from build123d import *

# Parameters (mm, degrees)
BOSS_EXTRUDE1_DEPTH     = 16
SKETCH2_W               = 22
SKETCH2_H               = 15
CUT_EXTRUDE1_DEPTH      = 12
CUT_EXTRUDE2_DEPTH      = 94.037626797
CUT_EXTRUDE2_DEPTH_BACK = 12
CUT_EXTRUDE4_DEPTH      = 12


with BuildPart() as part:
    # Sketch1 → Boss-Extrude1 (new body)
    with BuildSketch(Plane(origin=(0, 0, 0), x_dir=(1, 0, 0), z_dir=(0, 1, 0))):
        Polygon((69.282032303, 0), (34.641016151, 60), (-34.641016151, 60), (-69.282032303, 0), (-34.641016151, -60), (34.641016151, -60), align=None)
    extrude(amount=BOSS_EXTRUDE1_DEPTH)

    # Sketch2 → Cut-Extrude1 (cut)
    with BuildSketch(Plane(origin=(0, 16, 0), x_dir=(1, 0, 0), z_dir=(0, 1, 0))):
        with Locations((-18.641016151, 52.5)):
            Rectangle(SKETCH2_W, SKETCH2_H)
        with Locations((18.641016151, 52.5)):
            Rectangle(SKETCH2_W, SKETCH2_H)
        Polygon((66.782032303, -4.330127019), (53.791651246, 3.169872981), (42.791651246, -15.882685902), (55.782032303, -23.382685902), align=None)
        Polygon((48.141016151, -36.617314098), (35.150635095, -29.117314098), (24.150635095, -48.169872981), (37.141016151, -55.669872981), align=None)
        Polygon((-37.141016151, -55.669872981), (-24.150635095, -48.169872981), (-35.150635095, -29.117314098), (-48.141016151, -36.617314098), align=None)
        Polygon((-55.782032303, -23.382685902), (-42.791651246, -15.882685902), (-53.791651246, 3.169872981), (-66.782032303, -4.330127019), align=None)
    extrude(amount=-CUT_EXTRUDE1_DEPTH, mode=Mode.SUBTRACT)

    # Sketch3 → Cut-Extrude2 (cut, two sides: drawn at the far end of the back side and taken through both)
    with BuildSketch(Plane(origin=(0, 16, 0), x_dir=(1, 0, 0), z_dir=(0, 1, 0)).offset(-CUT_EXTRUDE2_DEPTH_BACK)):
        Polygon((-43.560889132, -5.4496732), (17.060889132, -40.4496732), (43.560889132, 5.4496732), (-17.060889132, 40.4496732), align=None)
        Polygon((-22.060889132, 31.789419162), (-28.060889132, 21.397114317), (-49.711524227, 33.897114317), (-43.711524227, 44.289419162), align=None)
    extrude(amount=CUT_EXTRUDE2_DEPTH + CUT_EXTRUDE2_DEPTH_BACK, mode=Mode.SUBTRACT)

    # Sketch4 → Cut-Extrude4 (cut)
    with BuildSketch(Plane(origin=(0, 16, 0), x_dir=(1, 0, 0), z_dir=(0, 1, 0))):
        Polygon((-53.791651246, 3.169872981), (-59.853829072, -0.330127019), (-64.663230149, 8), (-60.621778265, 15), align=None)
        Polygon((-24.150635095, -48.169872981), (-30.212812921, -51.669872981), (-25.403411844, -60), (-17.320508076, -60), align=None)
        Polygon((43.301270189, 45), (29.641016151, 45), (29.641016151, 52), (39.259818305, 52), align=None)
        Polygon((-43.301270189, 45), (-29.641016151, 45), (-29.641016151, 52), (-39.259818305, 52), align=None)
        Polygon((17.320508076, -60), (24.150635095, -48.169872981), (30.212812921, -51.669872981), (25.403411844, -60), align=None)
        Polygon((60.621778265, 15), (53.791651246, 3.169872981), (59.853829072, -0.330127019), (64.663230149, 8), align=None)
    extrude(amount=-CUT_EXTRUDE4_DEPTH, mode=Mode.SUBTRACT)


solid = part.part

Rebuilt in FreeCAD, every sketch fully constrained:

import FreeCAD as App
import Part
import Sketcher

V = App.Vector
Q = App.Units.Quantity


def add_polygon(sketch, points):
    """Adds a closed chain of lines whose ends are joined by coincident constraints."""
    first, n = sketch.GeometryCount, len(points)
    for a, b in zip(points, points[1:] + points[:1]):
        sketch.addGeometry(Part.LineSegment(App.Vector(*a, 0), App.Vector(*b, 0)), False)
    for i in range(n):
        sketch.addConstraint(Sketcher.Constraint("Coincident", first + i, 2, first + (i + 1) % n, 1))

doc = App.newDocument("Part")
params = doc.addObject("Spreadsheet::Sheet", "Params")
for row, (alias, value) in enumerate([
    ("pad1_length", "16 mm"),
    ("sketch2_width", "22 mm"),
    ("sketch2_height", "15 mm"),
    ("sketch2_length", "15 mm"),
    ("sketch2_length2", "22 mm"),
    ("pocket1_length", "12 mm"),
    ("sketch3_length", "70 mm"),
    ("sketch3_length2", "53 mm"),
    ("sketch3_length3", "10 mm"),
    ("sketch3_length4", "25 mm"),
    ("sketch3_length5", "12 mm"),
    ("pocket2_length", "94.037627 mm"),
    ("pocket2_length2", "12 mm"),
    ("sketch4_height", "7 mm"),
    ("pocket3_length", "12 mm"),
], start=1):
    params.set(f"A{row}", alias)
    params.set(f"B{row}", "=" + value)
    params.setAlias(f"B{row}", alias)

body = doc.addObject("PartDesign::Body", "Body")

# Sketch on XZ plane
sketch1 = body.newObject("Sketcher::SketchObject", "Sketch")
sketch1.AttachmentSupport = (doc.getObject("XZ_Plane"), [""])
sketch1.MapMode = "FlatFace"
add_polygon(sketch1, [(69.282032, 0), (34.641016, -60), (-34.641016, -60), (-69.282032, 0), (-34.641016, 60), (34.641016, 60)])  # lines 0-5
sketch1.addConstraint([
    Sketcher.Constraint("Horizontal", 1),
    Sketcher.Constraint("Horizontal", 4),
    Sketcher.Constraint("Symmetric", 0, 2, 3, 2, -1, 1),
    Sketcher.Constraint("Symmetric", 2, 2, 5, 2, -1, 1),
    Sketcher.Constraint("PointOnObject", 2, 2, -1),
    Sketcher.Constraint("Parallel", 2, 5),
    Sketcher.Constraint("Vertical", 1, 2, 3, 2),
    Sketcher.Constraint("Angle", 0, Q("-120 deg")),
    Sketcher.Constraint("DistanceY", 0, 2, -1, 1, Q("60 mm")),
    Sketcher.Constraint("DistanceX", 1, 2, 1, 1, Q("69.282032 mm")),
])
pad1 = body.newObject("PartDesign::Pad", "Pad")
pad1.Profile = sketch1
pad1.setExpression("Length", "Params.pad1_length")
pad1.Reversed = True

# Sketch on XZ plane
sketch2 = body.newObject("Sketcher::SketchObject", "Sketch001")
sketch2.AttachmentSupport = (doc.getObject("XZ_Plane"), [""])
sketch2.MapMode = "FlatFace"
sketch2.AttachmentOffset = App.Placement(V(0, 0, -16), App.Rotation())
add_polygon(sketch2, [(-29.641016, -60), (-29.641016, -45), (-7.641016, -45), (-7.641016, -60)])  # lines 0-3
add_polygon(sketch2, [(7.641016, -60), (7.641016, -45), (29.641016, -45), (29.641016, -60)])  # lines 4-7
add_polygon(sketch2, [(66.782032, 4.330127), (53.791651, -3.169873), (42.791651, 15.882686), (55.782032, 23.382686)])  # lines 8-11
add_polygon(sketch2, [(48.141016, 36.617314), (35.150635, 29.117314), (24.150635, 48.169873), (37.141016, 55.669873)])  # lines 12-15
add_polygon(sketch2, [(-37.141016, 55.669873), (-24.150635, 48.169873), (-35.150635, 29.117314), (-48.141016, 36.617314)])  # lines 16-19
add_polygon(sketch2, [(-55.782032, 23.382686), (-42.791651, 15.882686), (-53.791651, -3.169873), (-66.782032, 4.330127)])  # lines 20-23
sketch2.addConstraint([
    Sketcher.Constraint("Vertical", 0),
    Sketcher.Constraint("Horizontal", 1),
    Sketcher.Constraint("Vertical", 2),
    Sketcher.Constraint("Horizontal", 3),
    Sketcher.Constraint("Vertical", 4),
    Sketcher.Constraint("Horizontal", 5),
    Sketcher.Constraint("Vertical", 6),
    Sketcher.Constraint("Horizontal", 7),
    Sketcher.Constraint("Symmetric", 1, 2, 4, 2, -2),
    Sketcher.Constraint("Symmetric", 3, 2, 6, 2, -2),
    Sketcher.Constraint("Symmetric", 13, 2, 16, 2, -2),
    Sketcher.Constraint("Symmetric", 12, 2, 17, 2, -2),
    Sketcher.Constraint("Symmetric", 15, 2, 18, 2, -2),
    Sketcher.Constraint("Symmetric", 14, 2, 19, 2, -2),
    Sketcher.Constraint("Symmetric", 9, 2, 20, 2, -2),
    Sketcher.Constraint("Symmetric", 8, 2, 21, 2, -2),
    Sketcher.Constraint("Symmetric", 11, 2, 22, 2, -2),
    Sketcher.Constraint("Symmetric", 10, 2, 23, 2, -2),
    Sketcher.Constraint("Perpendicular", 8, 9),
    Sketcher.Constraint("Perpendicular", 9, 10),
    Sketcher.Constraint("Perpendicular", 10, 11),
    Sketcher.Constraint("Perpendicular", 11, 12),
    Sketcher.Constraint("Perpendicular", 12, 13),
    Sketcher.Constraint("Perpendicular", 13, 14),
    Sketcher.Constraint("Perpendicular", 14, 15),
    Sketcher.Constraint("Equal", 10, 12),
    Sketcher.Constraint("Equal", 11, 13),
    Sketcher.Constraint("DistanceX", 1, 1, 1, 2, Q("22 mm")),
    Sketcher.Constraint("DistanceY", 0, 1, 0, 2, Q("15 mm")),
    Sketcher.Constraint("Angle", 8, Q("-150 deg")),
    Sketcher.Constraint("Distance", 8, Q("15 mm")),
    Sketcher.Constraint("Distance", 9, Q("22 mm")),
    Sketcher.Constraint("DistanceY", 0, 2, -1, 1, Q("45 mm")),
    Sketcher.Constraint("DistanceX", 18, 2, 0, 2, Q("18.5 mm")),
    Sketcher.Constraint("DistanceX", -1, 1, 8, 2, Q("53.791651 mm")),
    Sketcher.Constraint("DistanceY", 9, 2, 12, 2, Q("13.234628 mm")),
    Sketcher.Constraint("DistanceX", 16, 2, 13, 2, Q("48.30127 mm")),
    Sketcher.Constraint("DistanceY", 8, 2, -1, 1, Q("3.169873 mm")),
])
sketch2.setExpression("Constraints[51]", "Params.sketch2_width")
sketch2.setExpression("Constraints[52]", "Params.sketch2_height")
sketch2.setExpression("Constraints[54]", "Params.sketch2_length")
sketch2.setExpression("Constraints[55]", "Params.sketch2_length2")
pocket1 = body.newObject("PartDesign::Pocket", "Pocket")
pocket1.Profile = sketch2
pocket1.setExpression("Length", "Params.pocket1_length")
pocket1.Reversed = True

# Sketch on XZ plane
sketch3 = body.newObject("Sketcher::SketchObject", "Sketch002")
sketch3.AttachmentSupport = (doc.getObject("XZ_Plane"), [""])
sketch3.MapMode = "FlatFace"
sketch3.AttachmentOffset = App.Placement(V(0, 0, -16), App.Rotation())
add_polygon(sketch3, [(-43.560889, 5.449673), (17.060889, 40.449673), (43.560889, -5.449673), (-17.060889, -40.449673), (-22.060889, -31.789419), (-43.711524, -44.289419), (-49.711524, -33.897114), (-28.060889, -21.397114)])  # lines 0-7
sketch3.addConstraint([
    Sketcher.Constraint("Symmetric", 0, 2, 2, 2, -1, 1),
    Sketcher.Constraint("Symmetric", 1, 2, 7, 2, -1, 1),
    Sketcher.Constraint("Perpendicular", 0, 1),
    Sketcher.Constraint("Perpendicular", 2, 3),
    Sketcher.Constraint("Perpendicular", 3, 4),
    Sketcher.Constraint("Perpendicular", 4, 5),
    Sketcher.Constraint("Perpendicular", 5, 6),
    Sketcher.Constraint("Perpendicular", 6, 7),
    Sketcher.Constraint("Angle", 0, Q("30 deg")),
    Sketcher.Constraint("Distance", 0, Q("70 mm")),
    Sketcher.Constraint("Distance", 1, Q("53 mm")),
    Sketcher.Constraint("Distance", 3, Q("10 mm")),
    Sketcher.Constraint("Distance", 4, Q("25 mm")),
    Sketcher.Constraint("Distance", 5, Q("12 mm")),
])
sketch3.setExpression("Constraints[17]", "Params.sketch3_length")
sketch3.setExpression("Constraints[18]", "Params.sketch3_length2")
sketch3.setExpression("Constraints[19]", "Params.sketch3_length3")
sketch3.setExpression("Constraints[20]", "Params.sketch3_length4")
sketch3.setExpression("Constraints[21]", "Params.sketch3_length5")
pocket2 = body.newObject("PartDesign::Pocket", "Pocket001")
pocket2.Profile = sketch3
pocket2.Type = "TwoLengths"
pocket2.setExpression("Length", "Params.pocket2_length")
pocket2.setExpression("Length2", "Params.pocket2_length2")

# Sketch on XZ plane
sketch4 = body.newObject("Sketcher::SketchObject", "Sketch003")
sketch4.AttachmentSupport = (doc.getObject("XZ_Plane"), [""])
sketch4.MapMode = "FlatFace"
sketch4.AttachmentOffset = App.Placement(V(0, 0, -16), App.Rotation())
add_polygon(sketch4, [(-59.853829, 0.330127), (-53.791651, -3.169873), (-60.621778, -15), (-64.66323, -8)])  # lines 0-3
add_polygon(sketch4, [(-24.150635, 48.169873), (-30.212813, 51.669873), (-25.403412, 60), (-17.320508, 60)])  # lines 4-7
add_polygon(sketch4, [(29.641016, -45), (43.30127, -45), (39.259818, -52), (29.641016, -52)])  # lines 8-11
add_polygon(sketch4, [(-43.30127, -45), (-29.641016, -45), (-29.641016, -52), (-39.259818, -52)])  # lines 12-15
add_polygon(sketch4, [(24.150635, 48.169873), (17.320508, 60), (25.403412, 60), (30.212813, 51.669873)])  # lines 16-19
add_polygon(sketch4, [(60.621778, -15), (53.791651, -3.169873), (59.853829, 0.330127), (64.66323, -8)])  # lines 20-23
sketch4.addConstraint([
    Sketcher.Constraint("Horizontal", 6),
    Sketcher.Constraint("Horizontal", 8),
    Sketcher.Constraint("Horizontal", 10),
    Sketcher.Constraint("Vertical", 11),
    Sketcher.Constraint("Horizontal", 12),
    Sketcher.Constraint("Vertical", 13),
    Sketcher.Constraint("Horizontal", 14),
    Sketcher.Constraint("Horizontal", 17),
    Sketcher.Constraint("Symmetric", 11, 2, 12, 2, -2),
    Sketcher.Constraint("Symmetric", 9, 2, 14, 2, -2),
    Sketcher.Constraint("Symmetric", 6, 2, 16, 2, -2),
    Sketcher.Constraint("Symmetric", 4, 2, 18, 2, -2),
    Sketcher.Constraint("Symmetric", 7, 2, 19, 2, -2),
    Sketcher.Constraint("Symmetric", 0, 2, 20, 2, -2),
    Sketcher.Constraint("Symmetric", 3, 2, 21, 2, -2),
    Sketcher.Constraint("Symmetric", 2, 2, 22, 2, -2),
    Sketcher.Constraint("Symmetric", 1, 2, 23, 2, -2),
    Sketcher.Constraint("Perpendicular", 0, 1),
    Sketcher.Constraint("Parallel", 1, 3),
    Sketcher.Constraint("Perpendicular", 3, 4),
    Sketcher.Constraint("Perpendicular", 4, 5),
    Sketcher.Constraint("Parallel", 5, 7),
    Sketcher.Constraint("Parallel", 7, 9),
    Sketcher.Constraint("Parallel", 2, 15),
    Sketcher.Constraint("Parallel", 15, 16),
    Sketcher.Constraint("Parallel", 16, 18),
    Sketcher.Constraint("Equal", 0, 4),
    Sketcher.Constraint("Equal", 3, 5),
    Sketcher.Constraint("Equal", 1, 7),
    Sketcher.Constraint("Equal", 2, 9),
    Sketcher.Constraint("DistanceY", 11, 1, 11, 2, Q("7 mm")),
    Sketcher.Constraint("DistanceY", 1, 2, -1, 1, Q("15 mm")),
    Sketcher.Constraint("DistanceY", -1, 1, 5, 2, Q("60 mm")),
    Sketcher.Constraint("DistanceY", 8, 2, -1, 1, Q("45 mm")),
    Sketcher.Constraint("DistanceX", 2, 2, 3, 2, Q("4.809401 mm")),
    Sketcher.Constraint("DistanceX", 3, 2, 8, 2, Q("103.155099 mm")),
    Sketcher.Constraint("DistanceX", 8, 1, 8, 2, Q("13.660254 mm")),
    Sketcher.Constraint("DistanceX", 0, 2, -1, 1, Q("53.791651 mm")),
    Sketcher.Constraint("DistanceX", 5, 2, -1, 1, Q("25.403412 mm")),
])
sketch4.setExpression("Constraints[54]", "Params.sketch4_height")
pocket3 = body.newObject("PartDesign::Pocket", "Pocket002")
pocket3.Profile = sketch4
pocket3.setExpression("Length", "Params.pocket3_length")
pocket3.Reversed = True

doc.recompute()
